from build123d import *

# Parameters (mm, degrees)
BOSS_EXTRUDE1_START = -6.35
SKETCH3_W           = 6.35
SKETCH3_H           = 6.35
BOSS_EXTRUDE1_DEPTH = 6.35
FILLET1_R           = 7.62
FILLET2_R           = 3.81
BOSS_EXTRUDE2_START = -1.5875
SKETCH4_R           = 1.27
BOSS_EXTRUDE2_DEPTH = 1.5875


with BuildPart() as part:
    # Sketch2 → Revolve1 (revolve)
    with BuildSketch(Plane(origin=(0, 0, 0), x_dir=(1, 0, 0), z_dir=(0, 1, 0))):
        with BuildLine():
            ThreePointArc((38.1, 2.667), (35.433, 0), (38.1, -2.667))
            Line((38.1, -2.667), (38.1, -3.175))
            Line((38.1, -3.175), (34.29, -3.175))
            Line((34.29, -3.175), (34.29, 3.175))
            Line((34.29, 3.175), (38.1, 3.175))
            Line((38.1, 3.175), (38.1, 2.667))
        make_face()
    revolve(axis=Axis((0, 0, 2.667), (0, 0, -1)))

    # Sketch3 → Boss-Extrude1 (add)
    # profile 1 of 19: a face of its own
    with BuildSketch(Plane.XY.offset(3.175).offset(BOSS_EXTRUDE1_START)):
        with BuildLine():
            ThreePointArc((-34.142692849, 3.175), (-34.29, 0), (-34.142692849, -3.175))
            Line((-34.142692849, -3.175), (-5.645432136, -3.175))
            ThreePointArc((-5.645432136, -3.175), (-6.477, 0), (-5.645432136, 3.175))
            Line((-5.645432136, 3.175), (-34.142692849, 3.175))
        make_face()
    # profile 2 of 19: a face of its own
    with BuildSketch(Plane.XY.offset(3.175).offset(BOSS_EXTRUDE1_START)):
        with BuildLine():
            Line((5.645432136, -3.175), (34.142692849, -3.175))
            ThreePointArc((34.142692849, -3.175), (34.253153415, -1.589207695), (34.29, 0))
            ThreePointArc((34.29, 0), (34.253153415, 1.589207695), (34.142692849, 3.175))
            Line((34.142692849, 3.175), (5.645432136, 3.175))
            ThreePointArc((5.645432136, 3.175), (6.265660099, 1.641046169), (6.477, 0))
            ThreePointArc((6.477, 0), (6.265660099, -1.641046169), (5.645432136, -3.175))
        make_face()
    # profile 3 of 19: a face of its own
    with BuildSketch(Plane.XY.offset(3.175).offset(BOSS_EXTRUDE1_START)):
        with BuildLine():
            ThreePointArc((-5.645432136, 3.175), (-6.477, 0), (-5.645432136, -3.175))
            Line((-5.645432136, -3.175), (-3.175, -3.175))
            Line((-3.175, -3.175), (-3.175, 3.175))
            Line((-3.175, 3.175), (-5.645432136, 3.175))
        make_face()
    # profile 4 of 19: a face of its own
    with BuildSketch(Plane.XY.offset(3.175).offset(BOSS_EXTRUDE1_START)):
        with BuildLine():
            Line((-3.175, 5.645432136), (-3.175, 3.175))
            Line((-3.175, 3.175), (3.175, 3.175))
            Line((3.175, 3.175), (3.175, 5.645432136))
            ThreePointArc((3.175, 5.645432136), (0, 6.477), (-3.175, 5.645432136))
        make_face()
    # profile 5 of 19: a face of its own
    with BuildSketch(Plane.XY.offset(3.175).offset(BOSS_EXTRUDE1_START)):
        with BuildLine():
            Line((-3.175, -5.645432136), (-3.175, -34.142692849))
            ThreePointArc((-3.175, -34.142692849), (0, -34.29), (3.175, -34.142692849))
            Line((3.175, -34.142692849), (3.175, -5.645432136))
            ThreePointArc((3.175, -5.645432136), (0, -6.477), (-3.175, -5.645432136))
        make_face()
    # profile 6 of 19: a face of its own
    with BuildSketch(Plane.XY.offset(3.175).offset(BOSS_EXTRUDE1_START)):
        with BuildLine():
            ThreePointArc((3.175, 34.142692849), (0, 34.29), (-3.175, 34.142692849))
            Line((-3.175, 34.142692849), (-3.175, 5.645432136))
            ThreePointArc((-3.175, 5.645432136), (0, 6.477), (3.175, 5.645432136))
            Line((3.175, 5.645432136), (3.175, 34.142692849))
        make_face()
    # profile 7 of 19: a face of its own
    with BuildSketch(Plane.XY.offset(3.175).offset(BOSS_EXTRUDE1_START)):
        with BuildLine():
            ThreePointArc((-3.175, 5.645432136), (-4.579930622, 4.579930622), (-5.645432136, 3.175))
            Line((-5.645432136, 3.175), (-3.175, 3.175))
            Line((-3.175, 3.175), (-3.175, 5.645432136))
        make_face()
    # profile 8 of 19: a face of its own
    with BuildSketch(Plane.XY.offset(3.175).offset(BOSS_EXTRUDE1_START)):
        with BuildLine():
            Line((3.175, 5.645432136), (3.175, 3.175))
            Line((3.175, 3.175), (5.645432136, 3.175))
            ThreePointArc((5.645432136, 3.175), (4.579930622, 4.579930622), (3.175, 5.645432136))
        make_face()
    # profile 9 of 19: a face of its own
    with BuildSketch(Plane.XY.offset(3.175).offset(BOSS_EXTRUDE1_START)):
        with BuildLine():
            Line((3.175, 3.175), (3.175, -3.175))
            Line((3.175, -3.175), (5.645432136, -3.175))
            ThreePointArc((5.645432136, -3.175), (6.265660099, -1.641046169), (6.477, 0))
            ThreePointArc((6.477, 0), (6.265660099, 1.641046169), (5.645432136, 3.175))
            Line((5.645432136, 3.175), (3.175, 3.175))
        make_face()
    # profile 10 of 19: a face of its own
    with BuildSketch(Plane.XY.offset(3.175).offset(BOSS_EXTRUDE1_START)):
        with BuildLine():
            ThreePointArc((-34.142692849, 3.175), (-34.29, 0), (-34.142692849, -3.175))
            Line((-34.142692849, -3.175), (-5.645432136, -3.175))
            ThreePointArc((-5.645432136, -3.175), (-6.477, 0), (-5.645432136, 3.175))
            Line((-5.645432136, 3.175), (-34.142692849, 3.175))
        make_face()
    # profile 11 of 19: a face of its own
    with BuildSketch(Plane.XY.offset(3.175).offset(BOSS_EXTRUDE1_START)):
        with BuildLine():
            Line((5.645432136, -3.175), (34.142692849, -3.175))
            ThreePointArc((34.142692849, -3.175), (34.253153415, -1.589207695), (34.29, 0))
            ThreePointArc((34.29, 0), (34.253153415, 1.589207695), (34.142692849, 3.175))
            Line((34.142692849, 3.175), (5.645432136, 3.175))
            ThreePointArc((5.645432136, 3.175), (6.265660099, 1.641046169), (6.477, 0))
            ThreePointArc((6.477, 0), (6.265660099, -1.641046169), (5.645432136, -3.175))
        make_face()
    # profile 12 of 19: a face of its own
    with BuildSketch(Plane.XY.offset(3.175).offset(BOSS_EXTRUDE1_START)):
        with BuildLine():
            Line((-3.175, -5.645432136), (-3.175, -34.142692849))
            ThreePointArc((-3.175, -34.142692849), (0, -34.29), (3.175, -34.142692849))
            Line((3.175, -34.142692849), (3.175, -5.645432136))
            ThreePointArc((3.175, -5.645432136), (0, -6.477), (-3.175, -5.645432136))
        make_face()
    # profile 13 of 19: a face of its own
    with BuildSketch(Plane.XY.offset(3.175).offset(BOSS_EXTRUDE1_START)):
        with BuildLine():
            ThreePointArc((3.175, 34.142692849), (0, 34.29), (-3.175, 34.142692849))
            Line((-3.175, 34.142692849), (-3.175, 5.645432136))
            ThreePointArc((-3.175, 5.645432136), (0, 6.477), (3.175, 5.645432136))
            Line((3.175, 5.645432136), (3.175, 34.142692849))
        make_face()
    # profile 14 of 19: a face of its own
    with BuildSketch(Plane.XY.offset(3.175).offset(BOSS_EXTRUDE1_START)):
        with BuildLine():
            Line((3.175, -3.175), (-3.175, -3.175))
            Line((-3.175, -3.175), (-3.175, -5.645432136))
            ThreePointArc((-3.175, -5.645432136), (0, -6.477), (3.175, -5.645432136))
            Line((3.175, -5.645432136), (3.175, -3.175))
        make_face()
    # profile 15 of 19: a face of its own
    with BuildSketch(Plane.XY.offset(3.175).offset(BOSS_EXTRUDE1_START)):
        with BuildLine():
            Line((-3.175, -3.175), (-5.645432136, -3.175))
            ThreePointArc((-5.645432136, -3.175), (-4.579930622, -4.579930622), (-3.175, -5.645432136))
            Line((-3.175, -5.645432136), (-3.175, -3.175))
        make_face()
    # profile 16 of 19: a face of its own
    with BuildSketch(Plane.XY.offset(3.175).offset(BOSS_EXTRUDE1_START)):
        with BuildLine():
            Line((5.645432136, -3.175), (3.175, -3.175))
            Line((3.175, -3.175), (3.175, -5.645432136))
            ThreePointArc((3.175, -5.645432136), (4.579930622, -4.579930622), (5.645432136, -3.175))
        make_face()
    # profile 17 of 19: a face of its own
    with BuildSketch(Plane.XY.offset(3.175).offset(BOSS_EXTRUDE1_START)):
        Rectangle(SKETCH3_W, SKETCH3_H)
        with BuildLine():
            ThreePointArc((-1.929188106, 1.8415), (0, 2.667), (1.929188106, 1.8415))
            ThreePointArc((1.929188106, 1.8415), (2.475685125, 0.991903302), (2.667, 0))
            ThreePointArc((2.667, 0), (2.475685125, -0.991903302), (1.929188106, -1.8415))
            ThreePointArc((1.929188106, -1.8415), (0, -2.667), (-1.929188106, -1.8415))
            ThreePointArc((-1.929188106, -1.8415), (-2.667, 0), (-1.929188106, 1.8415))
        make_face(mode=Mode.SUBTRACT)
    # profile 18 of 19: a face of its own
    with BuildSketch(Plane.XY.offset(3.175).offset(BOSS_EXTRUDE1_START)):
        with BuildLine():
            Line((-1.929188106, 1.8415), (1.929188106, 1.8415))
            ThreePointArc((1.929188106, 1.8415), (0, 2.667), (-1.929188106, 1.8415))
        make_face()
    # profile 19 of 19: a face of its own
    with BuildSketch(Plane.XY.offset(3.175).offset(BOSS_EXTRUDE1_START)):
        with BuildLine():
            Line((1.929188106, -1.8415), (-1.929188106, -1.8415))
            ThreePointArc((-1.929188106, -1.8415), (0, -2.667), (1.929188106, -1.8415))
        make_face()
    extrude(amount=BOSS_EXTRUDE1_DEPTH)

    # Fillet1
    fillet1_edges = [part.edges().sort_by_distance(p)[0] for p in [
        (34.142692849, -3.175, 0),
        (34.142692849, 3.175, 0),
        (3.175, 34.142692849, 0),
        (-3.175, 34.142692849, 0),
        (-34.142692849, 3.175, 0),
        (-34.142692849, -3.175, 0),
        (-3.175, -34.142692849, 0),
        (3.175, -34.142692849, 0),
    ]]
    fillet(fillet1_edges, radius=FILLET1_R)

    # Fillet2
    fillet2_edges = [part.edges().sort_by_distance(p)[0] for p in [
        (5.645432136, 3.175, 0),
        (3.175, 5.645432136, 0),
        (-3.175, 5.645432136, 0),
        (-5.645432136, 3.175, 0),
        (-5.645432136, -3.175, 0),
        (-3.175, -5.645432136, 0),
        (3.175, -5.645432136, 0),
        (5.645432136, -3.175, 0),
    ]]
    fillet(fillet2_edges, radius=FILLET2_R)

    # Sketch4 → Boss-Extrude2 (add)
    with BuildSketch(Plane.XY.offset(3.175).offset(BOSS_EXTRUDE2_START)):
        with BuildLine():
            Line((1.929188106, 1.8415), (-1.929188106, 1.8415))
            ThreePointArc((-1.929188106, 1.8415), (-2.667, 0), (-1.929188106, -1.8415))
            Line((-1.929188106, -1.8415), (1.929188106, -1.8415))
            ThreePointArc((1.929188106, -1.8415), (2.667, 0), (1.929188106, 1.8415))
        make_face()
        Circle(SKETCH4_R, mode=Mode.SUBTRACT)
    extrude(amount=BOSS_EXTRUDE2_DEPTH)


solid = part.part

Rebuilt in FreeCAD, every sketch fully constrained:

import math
import FreeCAD as App
import Part
import Sketcher
Q = App.Units.Quantity


def edges_at(feature, points):
    """Names of the edges that pass closest to the given points."""
    edges = feature.Shape.Edges
    near = lambda p: min(range(len(edges)), key=lambda i: edges[i].distToShape(Part.Vertex(*p))[0])
    return sorted({f"Edge{near(p) + 1}" for p in points})

doc = App.newDocument("Part")
body = doc.addObject("PartDesign::Body", "Body")

# Sketch on XZ plane
sketch1 = body.newObject("Sketcher::SketchObject", "Sketch")
sketch1.AttachmentSupport = (doc.getObject("XZ_Plane"), [""])
sketch1.MapMode = "FlatFace"
sketch1.addGeometry(Part.ArcOfCircle(Part.Circle(App.Vector(38.1, 0, 0), App.Vector(0, 0, 1), 2.667), math.radians(90), math.radians(270)), False)
sketch1.addGeometry(Part.LineSegment(App.Vector(38.1, -2.667, 0), App.Vector(38.1, -3.175, 0)), False)
sketch1.addGeometry(Part.LineSegment(App.Vector(38.1, -3.175, 0), App.Vector(34.29, -3.175, 0)), False)
sketch1.addGeometry(Part.LineSegment(App.Vector(34.29, -3.175, 0), App.Vector(34.29, 3.175, 0)), False)
sketch1.addGeometry(Part.LineSegment(App.Vector(34.29, 3.175, 0), App.Vector(38.1, 3.175, 0)), False)
sketch1.addGeometry(Part.LineSegment(App.Vector(38.1, 3.175, 0), App.Vector(38.1, 2.667, 0)), False)
sketch1.addConstraint(Sketcher.Constraint("Coincident", 0, 2, 1, 1))
sketch1.addConstraint(Sketcher.Constraint("Coincident", 1, 2, 2, 1))
sketch1.addConstraint(Sketcher.Constraint("Coincident", 2, 2, 3, 1))
sketch1.addConstraint(Sketcher.Constraint("Coincident", 3, 2, 4, 1))
sketch1.addConstraint(Sketcher.Constraint("Coincident", 4, 2, 5, 1))
sketch1.addConstraint(Sketcher.Constraint("Coincident", 5, 2, 0, 1))
sketch1.addConstraint(Sketcher.Constraint("Vertical", 1))
sketch1.addConstraint(Sketcher.Constraint("Horizontal", 2))
sketch1.addConstraint(Sketcher.Constraint("Vertical", 3))
sketch1.addConstraint(Sketcher.Constraint("Horizontal", 4))
sketch1.addConstraint(Sketcher.Constraint("Vertical", 5))
sketch1.addConstraint(Sketcher.Constraint("Symmetric", 1, 2, 4, 2, -1))
sketch1.addConstraint(Sketcher.Constraint("PointOnObject", 0, 3, -1))
sketch1.addConstraint(Sketcher.Constraint("Radius", 0, Q("0.105 in")))
sketch1.addConstraint(Sketcher.Constraint("DistanceX", 2, 2, 2, 1, Q("0.15 in")))
sketch1.addConstraint(Sketcher.Constraint("DistanceY", 1, 2, 1, 1, Q("0.02 in")))
sketch1.addConstraint(Sketcher.Constraint("DistanceX", -1, 1, 0, 3, Q("1.5 in")))
sketch1.addConstraint(Sketcher.Constraint("DistanceX", -1, 1, 0, 2, Q("1.5 in")))
revolution = body.newObject("PartDesign::Revolution", "Revolution")
revolution.Profile = sketch1
revolution.ReferenceAxis = (sketch1, ["V_Axis"])
revolution.Angle = 360

# Sketch on XY plane
sketch2 = body.newObject("Sketcher::SketchObject", "Sketch001")
sketch2.AttachmentSupport = (doc.getObject("XY_Plane"), [""])
sketch2.MapMode = "FlatFace"
sketch2.AttachmentOffset = App.Placement(App.Vector(0, 0, -0.125 * 25.4), App.Rotation())
sketch2.addGeometry(Part.ArcOfCircle(Part.Circle(App.Vector(0, 0, 0), App.Vector(0, 0, 1), 34.29), math.radians(174.687225), math.radians(185.312775)), False)
sketch2.addGeometry(Part.LineSegment(App.Vector(-34.142693, -3.175, 0), App.Vector(-5.645432, -3.175, 0)), False)
sketch2.addGeometry(Part.ArcOfCircle(Part.Circle(App.Vector(0, 0, 0), App.Vector(0, 0, 1), 6.477), math.radians(-150.64653), math.radians(-119.35347)), False)
sketch2.addGeometry(Part.LineSegment(App.Vector(-3.175, -5.645432, 0), App.Vector(-3.175, -34.142693, 0)), False)
sketch2.addGeometry(Part.ArcOfCircle(Part.Circle(App.Vector(0, 0, 0), App.Vector(0, 0, 1), 34.29), math.radians(-95.312775), math.radians(-84.687225)), False)
sketch2.addGeometry(Part.LineSegment(App.Vector(3.175, -34.142693, 0), App.Vector(3.175, -5.645432, 0)), False)
sketch2.addGeometry(Part.ArcOfCircle(Part.Circle(App.Vector(0, 0, 0), App.Vector(0, 0, 1), 6.477), math.radians(-60.64653), math.radians(-29.35347)), False)
sketch2.addGeometry(Part.LineSegment(App.Vector(5.645432, -3.175, 0), App.Vector(34.142693, -3.175, 0)), False)
sketch2.addGeometry(Part.ArcOfCircle(Part.Circle(App.Vector(0, 0, 0), App.Vector(0, 0, 1), 34.29), math.radians(-5.312775), math.radians(0)), False)
sketch2.addGeometry(Part.ArcOfCircle(Part.Circle(App.Vector(0, 0, 0), App.Vector(0, 0, 1), 34.29), math.radians(0), math.radians(5.312775)), False)
sketch2.addGeometry(Part.LineSegment(App.Vector(34.142693, 3.175, 0), App.Vector(5.645432, 3.175, 0)), False)
sketch2.addGeometry(Part.ArcOfCircle(Part.Circle(App.Vector(0, 0, 0), App.Vector(0, 0, 1), 6.477), math.radians(29.35347), math.radians(60.64653)), False)
sketch2.addGeometry(Part.LineSegment(App.Vector(3.175, 5.645432, 0), App.Vector(3.175, 34.142693, 0)), False)
sketch2.addGeometry(Part.ArcOfCircle(Part.Circle(App.Vector(0, 0, 0), App.Vector(0, 0, 1), 34.29), math.radians(84.687225), math.radians(95.312775)), False)
sketch2.addGeometry(Part.LineSegment(App.Vector(-3.175, 34.142693, 0), App.Vector(-3.175, 5.645432, 0)), False)
sketch2.addGeometry(Part.ArcOfCircle(Part.Circle(App.Vector(0, 0, 0), App.Vector(0, 0, 1), 6.477), math.radians(119.35347), math.radians(150.64653)), False)
sketch2.addGeometry(Part.LineSegment(App.Vector(-5.645432, 3.175, 0), App.Vector(-34.142693, 3.175, 0)), False)
sketch2.addGeometry(Part.ArcOfCircle(Part.Circle(App.Vector(0, 0, 0), App.Vector(0, 0, 1), 2.667), math.radians(136.332185), math.radians(223.667815)), False)
sketch2.addGeometry(Part.LineSegment(App.Vector(-1.929188, 1.8415, 0), App.Vector(1.929188, 1.8415, 0)), False)
sketch2.addGeometry(Part.ArcOfCircle(Part.Circle(App.Vector(0, 0, 0), App.Vector(0, 0, 1), 2.667), math.radians(0), math.radians(43.667815)), False)
sketch2.addGeometry(Part.ArcOfCircle(Part.Circle(App.Vector(0, 0, 0), App.Vector(0, 0, 1), 2.667), math.radians(-43.667815), math.radians(0)), False)
sketch2.addGeometry(Part.LineSegment(App.Vector(1.929188, -1.8415, 0), App.Vector(-1.929188, -1.8415, 0)), False)
sketch2.addConstraint(Sketcher.Constraint("Coincident", 0, 2, 1, 1))
sketch2.addConstraint(Sketcher.Constraint("Coincident", 1, 2, 2, 1))
sketch2.addConstraint(Sketcher.Constraint("Coincident", 2, 2, 3, 1))
sketch2.addConstraint(Sketcher.Constraint("Coincident", 3, 2, 4, 1))
sketch2.addConstraint(Sketcher.Constraint("Coincident", 4, 2, 5, 1))
sketch2.addConstraint(Sketcher.Constraint("Coincident", 5, 2, 6, 1))
sketch2.addConstraint(Sketcher.Constraint("Coincident", 6, 2, 7, 1))
sketch2.addConstraint(Sketcher.Constraint("Coincident", 7, 2, 8, 1))
sketch2.addConstraint(Sketcher.Constraint("Tangent", 8, 2, 9, 1))
sketch2.addConstraint(Sketcher.Constraint("Coincident", 9, 2, 10, 1))
sketch2.addConstraint(Sketcher.Constraint("Coincident", 10, 2, 11, 1))
sketch2.addConstraint(Sketcher.Constraint("Coincident", 11, 2, 12, 1))
sketch2.addConstraint(Sketcher.Constraint("Coincident", 12, 2, 13, 1))
sketch2.addConstraint(Sketcher.Constraint("Coincident", 13, 2, 14, 1))
sketch2.addConstraint(Sketcher.Constraint("Coincident", 14, 2, 15, 1))
sketch2.addConstraint(Sketcher.Constraint("Coincident", 15, 2, 16, 1))
sketch2.addConstraint(Sketcher.Constraint("Coincident", 16, 2, 0, 1))
sketch2.addConstraint(Sketcher.Constraint("Coincident", 17, 1, 18, 1))
sketch2.addConstraint(Sketcher.Constraint("Coincident", 18, 2, 19, 2))
sketch2.addConstraint(Sketcher.Constraint("Tangent", 19, 1, 20, 2))
sketch2.addConstraint(Sketcher.Constraint("Coincident", 20, 1, 21, 1))
sketch2.addConstraint(Sketcher.Constraint("Coincident", 21, 2, 17, 2))
sketch2.addConstraint(Sketcher.Constraint("Horizontal", 1))
sketch2.addConstraint(Sketcher.Constraint("Vertical", 3))
sketch2.addConstraint(Sketcher.Constraint("Vertical", 5))
sketch2.addConstraint(Sketcher.Constraint("Horizontal", 7))
sketch2.addConstraint(Sketcher.Constraint("Horizontal", 10))
sketch2.addConstraint(Sketcher.Constraint("Vertical", 12))
sketch2.addConstraint(Sketcher.Constraint("Vertical", 14))
sketch2.addConstraint(Sketcher.Constraint("Horizontal", 16))
sketch2.addConstraint(Sketcher.Constraint("Horizontal", 18))
sketch2.addConstraint(Sketcher.Constraint("Horizontal", 21))
sketch2.addConstraint(Sketcher.Constraint("Coincident", 0, 3, -1, 1))
sketch2.addConstraint(Sketcher.Constraint("Coincident", 2, 3, -1, 1))
sketch2.addConstraint(Sketcher.Constraint("Coincident", 4, 3, -1, 1))
sketch2.addConstraint(Sketcher.Constraint("Coincident", 6, 3, -1, 1))
sketch2.addConstraint(Sketcher.Constraint("Coincident", 8, 3, -1, 1))
sketch2.addConstraint(Sketcher.Constraint("Coincident", 11, 3, -1, 1))
sketch2.addConstraint(Sketcher.Constraint("Coincident", 13, 3, -1, 1))
sketch2.addConstraint(Sketcher.Constraint("Coincident", 15, 3, -1, 1))
sketch2.addConstraint(Sketcher.Constraint("Coincident", 17, 3, -1, 1))
sketch2.addConstraint(Sketcher.Constraint("Coincident", 19, 3, -1, 1))
sketch2.addConstraint(Sketcher.Constraint("Equal", 0, 4))
sketch2.addConstraint(Sketcher.Constraint("Equal", 2, 6))
sketch2.addConstraint(Sketcher.Constraint("Equal", 4, 8))
sketch2.addConstraint(Sketcher.Constraint("Equal", 8, 9))
sketch2.addConstraint(Sketcher.Constraint("Equal", 6, 11))
sketch2.addConstraint(Sketcher.Constraint("Equal", 9, 13))
sketch2.addConstraint(Sketcher.Constraint("Equal", 11, 15))
sketch2.addConstraint(Sketcher.Constraint("Equal", 17, 19))
sketch2.addConstraint(Sketcher.Constraint("Equal", 19, 20))
sketch2.addConstraint(Sketcher.Constraint("PointOnObject", 8, 2, -1))
sketch2.addConstraint(Sketcher.Constraint("PointOnObject", 19, 1, -1))
sketch2.addConstraint(Sketcher.Constraint("Horizontal", 3, 2, 4, 2))
sketch2.addConstraint(Sketcher.Constraint("Horizontal", 1, 2, 6, 2))
sketch2.addConstraint(Sketcher.Constraint("Horizontal", 12, 2, 13, 2))
sketch2.addConstraint(Sketcher.Constraint("Horizontal", 10, 2, 15, 2))
sketch2.addConstraint(Sketcher.Constraint("Vertical", 7, 2, 9, 2))
sketch2.addConstraint(Sketcher.Constraint("Vertical", 5, 2, 11, 2))
sketch2.addConstraint(Sketcher.Constraint("Vertical", 18, 2, 20, 1))
sketch2.addConstraint(Sketcher.Constraint("Equal", 16, 3))
sketch2.addConstraint(Sketcher.Constraint("Radius", 0, Q("1.35 in")))
sketch2.addConstraint(Sketcher.Constraint("Radius", 2, Q("0.255 in")))
sketch2.addConstraint(Sketcher.Constraint("Radius", 17, Q("0.105 in")))
sketch2.addConstraint(Sketcher.Constraint("DistanceX", 3, 2, 4, 2, Q("0.25 in")))
sketch2.addConstraint(Sketcher.Constraint("DistanceY", -1, 1, 17, 1, Q("0.0725 in")))
pad1 = body.newObject("PartDesign::Pad", "Pad")
pad1.Profile = sketch2
pad1.Length = Q("0.25 in")
doc.recompute()

fillet = body.newObject("PartDesign::Fillet", "Fillet")
fillet.Base = (pad1, edges_at(pad1, [
    (34.143, -3.175, 0),
    (34.143, 3.175, 0),
    (3.175, 34.143, 0),
    (-3.175, 34.143, 0),
    (-34.143, 3.175, 0),
    (-34.143, -3.175, 0),
    (-3.175, -34.143, 0),
    (3.175, -34.143, 0),
]))
fillet.Radius = Q("0.3 in")
doc.recompute()

fillet2 = body.newObject("PartDesign::Fillet", "Fillet001")
fillet2.Base = (fillet, edges_at(fillet, [
    (5.645, 3.175, 0),
    (3.175, 5.645, 0),
    (-3.175, 5.645, 0),
    (-5.645, 3.175, 0),
    (-5.645, -3.175, 0),
    (-3.175, -5.645, 0),
    (3.175, -5.645, 0),
    (5.645, -3.175, 0),
]))
fillet2.Radius = Q("0.15 in")

# Sketch on XY plane
sketch3 = body.newObject("Sketcher::SketchObject", "Sketch002")
sketch3.AttachmentSupport = (doc.getObject("XY_Plane"), [""])
sketch3.MapMode = "FlatFace"
sketch3.AttachmentOffset = App.Placement(App.Vector(0, 0, 0.0625 * 25.4), App.Rotation())
sketch3.addGeometry(Part.LineSegment(App.Vector(1.929188, 1.8415, 0), App.Vector(-1.929188, 1.8415, 0)), False)
sketch3.addGeometry(Part.ArcOfCircle(Part.Circle(App.Vector(0, 0, 0), App.Vector(0, 0, 1), 2.667), math.radians(136.332185), math.radians(223.667815)), False)
sketch3.addGeometry(Part.LineSegment(App.Vector(-1.929188, -1.8415, 0), App.Vector(1.929188, -1.8415, 0)), False)
sketch3.addGeometry(Part.ArcOfCircle(Part.Circle(App.Vector(0, 0, 0), App.Vector(0, 0, 1), 2.667), math.radians(-43.667815), math.radians(43.667815)), False)
sketch3.addGeometry(Part.Circle(App.Vector(0, 0, 0), App.Vector(0, 0, 1), 1.27), False)
sketch3.addConstraint(Sketcher.Constraint("Coincident", 0, 2, 1, 1))
sketch3.addConstraint(Sketcher.Constraint("Coincident", 1, 2, 2, 1))
sketch3.addConstraint(Sketcher.Constraint("Coincident", 2, 2, 3, 1))
sketch3.addConstraint(Sketcher.Constraint("Coincident", 3, 2, 0, 1))
sketch3.addConstraint(Sketcher.Constraint("Horizontal", 0))
sketch3.addConstraint(Sketcher.Constraint("Horizontal", 2))
sketch3.addConstraint(Sketcher.Constraint("Coincident", 1, 3, -1, 1))
sketch3.addConstraint(Sketcher.Constraint("Coincident", 3, 3, -1, 1))
sketch3.addConstraint(Sketcher.Constraint("Coincident", 4, 3, -1, 1))
sketch3.addConstraint(Sketcher.Constraint("Equal", 1, 3))
sketch3.addConstraint(Sketcher.Constraint("Vertical", 0, 2, 1, 2))
sketch3.addConstraint(Sketcher.Constraint("Diameter", 4, Q("0.1 in")))
sketch3.addConstraint(Sketcher.Constraint("Radius", 1, Q("0.105 in")))
sketch3.addConstraint(Sketcher.Constraint("DistanceY", 1, 2, 0, 2, Q("0.145 in")))
pad2 = body.newObject("PartDesign::Pad", "Pad001")
pad2.Profile = sketch3
pad2.Length = Q("0.0625 in")

doc.recompute()
